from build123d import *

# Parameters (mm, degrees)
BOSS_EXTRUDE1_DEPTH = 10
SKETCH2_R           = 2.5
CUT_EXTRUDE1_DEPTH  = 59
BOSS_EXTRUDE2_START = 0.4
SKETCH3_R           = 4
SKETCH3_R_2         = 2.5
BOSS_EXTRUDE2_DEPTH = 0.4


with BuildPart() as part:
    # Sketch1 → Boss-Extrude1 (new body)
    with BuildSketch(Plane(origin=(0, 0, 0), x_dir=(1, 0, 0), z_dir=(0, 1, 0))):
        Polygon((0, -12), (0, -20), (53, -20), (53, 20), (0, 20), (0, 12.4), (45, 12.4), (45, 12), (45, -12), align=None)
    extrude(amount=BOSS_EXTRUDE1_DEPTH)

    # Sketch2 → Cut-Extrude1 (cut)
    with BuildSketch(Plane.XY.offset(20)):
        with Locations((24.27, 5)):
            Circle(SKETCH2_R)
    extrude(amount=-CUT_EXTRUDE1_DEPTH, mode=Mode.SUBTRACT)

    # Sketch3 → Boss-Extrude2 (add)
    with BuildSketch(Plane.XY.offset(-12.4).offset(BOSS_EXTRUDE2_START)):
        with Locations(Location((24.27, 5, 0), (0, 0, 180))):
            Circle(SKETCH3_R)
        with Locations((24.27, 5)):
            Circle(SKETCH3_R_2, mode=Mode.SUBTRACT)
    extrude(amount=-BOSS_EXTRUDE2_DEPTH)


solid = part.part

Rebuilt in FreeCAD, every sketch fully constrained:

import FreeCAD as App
import Part
import Sketcher

doc = App.newDocument("Part")
body = doc.addObject("PartDesign::Body", "Body")

sketch1 = body.newObject("Sketcher::SketchObject", "Sketch")
sketch1.AttachmentSupport = (doc.getObject("XZ_Plane"), [""])
sketch1.MapMode = "FlatFace"
sketch1.addGeometry([
    Part.LineSegment(App.Vector(0, 12, 0), App.Vector(0, 20, 0)),
    Part.LineSegment(App.Vector(0, 20, 0), App.Vector(53, 20, 0)),
    Part.LineSegment(App.Vector(53, 20, 0), App.Vector(53, -20, 0)),
    Part.LineSegment(App.Vector(53, -20, 0), App.Vector(0, -20, 0)),
    Part.LineSegment(App.Vector(0, -20, 0), App.Vector(0, -12, 0)),
    Part.LineSegment(App.Vector(0, -12, 0), App.Vector(45, -12, 0)),
    Part.LineSegment(App.Vector(45, -12, 0), App.Vector(45, 12, 0)),
    Part.LineSegment(App.Vector(45, 12, 0), App.Vector(0, 12, 0)),
], False)
sketch1.addConstraint([
    Sketcher.Constraint("Coincident", 0, 2, 1, 1),
    Sketcher.Constraint("Coincident", 1, 2, 2, 1),
    Sketcher.Constraint("Coincident", 2, 2, 3, 1),
    Sketcher.Constraint("Coincident", 3, 2, 4, 1),
    Sketcher.Constraint("Coincident", 4, 2, 5, 1),
    Sketcher.Constraint("Coincident", 5, 2, 6, 1),
    Sketcher.Constraint("Coincident", 6, 2, 7, 1),
    Sketcher.Constraint("Coincident", 7, 2, 0, 1),
    Sketcher.Constraint("Vertical", 0),
    Sketcher.Constraint("Horizontal", 1),
    Sketcher.Constraint("Vertical", 2),
    Sketcher.Constraint("Horizontal", 3),
    Sketcher.Constraint("Vertical", 4),
    Sketcher.Constraint("Horizontal", 5),
    Sketcher.Constraint("Vertical", 6),
    Sketcher.Constraint("Horizontal", 7),
    Sketcher.Constraint("Symmetric", 0, 2, 3, 2, -1, 1),
    Sketcher.Constraint("PointOnObject", 0, 2, -2),
    Sketcher.Constraint("DistanceX", 1, 1, 1, 2, 53.0),
    Sketcher.Constraint("DistanceX", 5, 1, 5, 2, 45.0),
    Sketcher.Constraint("DistanceY", 0, 1, 0, 2, 8.0),
    Sketcher.Constraint("DistanceY", 2, 2, 2, 1, 40.0),
    Sketcher.Constraint("DistanceY", 4, 1, 4, 2, 7.6),
])
pad1 = body.newObject("PartDesign::Pad", "Pad")
pad1.Profile = sketch1
pad1.Length = 10
pad1.Reversed = True

sketch2 = body.newObject("Sketcher::SketchObject", "Sketch001")
sketch2.AttachmentSupport = (doc.getObject("XY_Plane"), [""])
sketch2.MapMode = "FlatFace"
sketch2.AttachmentOffset = App.Placement(App.Vector(0, 0, 20), App.Rotation())
sketch2.addGeometry(Part.Circle(App.Vector(24.3, 5, 0), App.Vector(0, 0, 1), 2.5), False)
sketch2.addConstraint([
    Sketcher.Constraint("Diameter", 0, 5.0),
    Sketcher.Constraint("DistanceY", -1, 1, 0, 3, 5.0),
    Sketcher.Constraint("DistanceX", -1, 1, 0, 3, 24.27),
])
pocket1 = body.newObject("PartDesign::Pocket", "Pocket")
pocket1.Profile = sketch2
pocket1.Length = 59

sketch3 = body.newObject("Sketcher::SketchObject", "Sketch002")
sketch3.AttachmentSupport = (doc.getObject("XY_Plane"), [""])
sketch3.MapMode = "FlatFace"
sketch3.AttachmentOffset = App.Placement(App.Vector(0, 0, -12), App.Rotation())
sketch3.addGeometry([
    Part.Circle(App.Vector(24.3, 5, 0), App.Vector(0, 0, 1), 4),
    Part.Circle(App.Vector(24.3, 5, 0), App.Vector(0, 0, 1), 2.5),
], False)
sketch3.addConstraint([
    Sketcher.Constraint("Coincident", 1, 3, 0, 3),
    Sketcher.Constraint("Diameter", 0, 8.0),
    Sketcher.Constraint("Diameter", 1, 5.0),
    Sketcher.Constraint("DistanceY", -1, 1, 0, 3, 5.0),
    Sketcher.Constraint("DistanceX", -1, 1, 0, 3, 24.27),
])
pad2 = body.newObject("PartDesign::Pad", "Pad001")
pad2.Profile = sketch3
pad2.Length = 0.4
pad2.Reversed = True

doc.recompute()
